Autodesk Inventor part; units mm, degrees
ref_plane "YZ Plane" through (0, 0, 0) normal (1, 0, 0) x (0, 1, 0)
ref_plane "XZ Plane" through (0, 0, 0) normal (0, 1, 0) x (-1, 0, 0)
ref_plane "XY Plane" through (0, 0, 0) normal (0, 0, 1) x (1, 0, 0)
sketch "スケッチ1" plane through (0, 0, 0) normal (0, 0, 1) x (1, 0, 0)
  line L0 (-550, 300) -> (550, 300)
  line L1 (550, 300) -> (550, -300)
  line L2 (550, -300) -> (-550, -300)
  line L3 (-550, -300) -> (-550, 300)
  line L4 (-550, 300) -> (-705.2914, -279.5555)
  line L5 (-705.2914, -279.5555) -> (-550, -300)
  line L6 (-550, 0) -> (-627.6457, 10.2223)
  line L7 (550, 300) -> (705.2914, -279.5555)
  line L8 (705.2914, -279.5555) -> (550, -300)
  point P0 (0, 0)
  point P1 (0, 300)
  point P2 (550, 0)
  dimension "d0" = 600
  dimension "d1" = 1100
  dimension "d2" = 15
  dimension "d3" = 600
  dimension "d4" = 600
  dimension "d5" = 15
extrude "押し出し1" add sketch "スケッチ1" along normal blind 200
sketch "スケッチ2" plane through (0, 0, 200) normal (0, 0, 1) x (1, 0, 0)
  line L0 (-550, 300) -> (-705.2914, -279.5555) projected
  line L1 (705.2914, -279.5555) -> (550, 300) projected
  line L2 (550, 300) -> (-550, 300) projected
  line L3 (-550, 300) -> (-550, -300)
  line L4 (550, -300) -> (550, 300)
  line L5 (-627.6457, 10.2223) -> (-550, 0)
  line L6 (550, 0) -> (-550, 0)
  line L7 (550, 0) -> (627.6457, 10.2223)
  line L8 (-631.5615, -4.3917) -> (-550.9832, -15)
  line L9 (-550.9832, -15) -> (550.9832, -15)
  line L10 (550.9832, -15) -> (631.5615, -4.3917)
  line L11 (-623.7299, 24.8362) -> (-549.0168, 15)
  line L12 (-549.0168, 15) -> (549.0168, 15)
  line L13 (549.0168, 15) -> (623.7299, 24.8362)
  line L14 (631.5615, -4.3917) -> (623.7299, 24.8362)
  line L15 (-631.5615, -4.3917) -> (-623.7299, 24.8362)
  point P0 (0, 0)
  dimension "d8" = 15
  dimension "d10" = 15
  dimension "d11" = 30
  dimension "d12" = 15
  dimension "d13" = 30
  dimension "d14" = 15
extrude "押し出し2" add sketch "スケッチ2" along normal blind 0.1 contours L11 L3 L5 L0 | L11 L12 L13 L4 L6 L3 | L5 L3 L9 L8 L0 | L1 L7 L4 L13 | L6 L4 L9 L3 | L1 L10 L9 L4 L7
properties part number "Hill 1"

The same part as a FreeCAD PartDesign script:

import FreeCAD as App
import Part
import Sketcher
Q = App.Units.Quantity

doc = App.newDocument("Part")
body = doc.addObject("PartDesign::Body", "Body")

# Sketch on XY plane
sketch1 = doc.addObject("Sketcher::SketchObject", "Sketch")
body.addObject(sketch1)
sketch1.AttachmentSupport = (doc.XY_Plane, [""])
sketch1.MapMode = "FlatFace"
sketch1.addGeometry(Part.LineSegment(App.Vector(550, 300, 0), App.Vector(-550, 300, 0)), False)
sketch1.addGeometry(Part.LineSegment(App.Vector(-550, 300, 0), App.Vector(-705, -280, 0)), False)
sketch1.addGeometry(Part.LineSegment(App.Vector(-705, -280, 0), App.Vector(-550, -300, 0)), False)
sketch1.addGeometry(Part.LineSegment(App.Vector(-550, -300, 0), App.Vector(550, -300, 0)), False)
sketch1.addGeometry(Part.LineSegment(App.Vector(550, -300, 0), App.Vector(705, -280, 0)), False)
sketch1.addGeometry(Part.LineSegment(App.Vector(705, -280, 0), App.Vector(550, 300, 0)), False)
sketch1.addConstraint(Sketcher.Constraint("Coincident", 0, 2, 1, 1))
sketch1.addConstraint(Sketcher.Constraint("Coincident", 1, 2, 2, 1))
sketch1.addConstraint(Sketcher.Constraint("Coincident", 2, 2, 3, 1))
sketch1.addConstraint(Sketcher.Constraint("Coincident", 3, 2, 4, 1))
sketch1.addConstraint(Sketcher.Constraint("Coincident", 4, 2, 5, 1))
sketch1.addConstraint(Sketcher.Constraint("Coincident", 5, 2, 0, 1))
sketch1.addConstraint(Sketcher.Constraint("Horizontal", 0))
sketch1.addConstraint(Sketcher.Constraint("Horizontal", 3))
sketch1.addConstraint(Sketcher.Constraint("Symmetric", 0, 2, 3, 2, -1, 1))
sketch1.addConstraint(Sketcher.Constraint("Symmetric", 1, 2, 4, 2, -2))
sketch1.addConstraint(Sketcher.Constraint("Vertical", 0, 2, 2, 2))
sketch1.addConstraint(Sketcher.Constraint("Vertical", 3, 2, 5, 2))
sketch1.addConstraint(Sketcher.Constraint("DistanceX", 0, 2, 0, 1, Q("1100 mm")))
sketch1.addConstraint(Sketcher.Constraint("Distance", 1, Q("600 mm")))
sketch1.addConstraint(Sketcher.Constraint("DistanceY", 2, 2, 0, 2, Q("600 mm")))
sketch1.addConstraint(Sketcher.Constraint("Angle", 1, Q("-105 deg")))
pad1 = doc.addObject("PartDesign::Pad", "Pad")
body.addObject(pad1)
pad1.Profile = sketch1
pad1.Length = 200

# Sketch on XY plane
sketch2 = doc.addObject("Sketcher::SketchObject", "Sketch001")
body.addObject(sketch2)
sketch2.AttachmentSupport = (doc.XY_Plane, [""])
sketch2.MapMode = "FlatFace"
sketch2.AttachmentOffset = App.Placement(App.Vector(0, 0, 200), App.Rotation())
sketch2.addGeometry(Part.LineSegment(App.Vector(-624, 25, 0), App.Vector(-632, -4, 0)), False)
sketch2.addGeometry(Part.LineSegment(App.Vector(-632, -4, 0), App.Vector(-551, -15, 0)), False)
sketch2.addGeometry(Part.LineSegment(App.Vector(-551, -15, 0), App.Vector(551, -15, 0)), False)
sketch2.addGeometry(Part.LineSegment(App.Vector(551, -15, 0), App.Vector(632, -4, 0)), False)
sketch2.addGeometry(Part.LineSegment(App.Vector(632, -4, 0), App.Vector(624, 25, 0)), False)
sketch2.addGeometry(Part.LineSegment(App.Vector(624, 25, 0), App.Vector(549, 15, 0)), False)
sketch2.addGeometry(Part.LineSegment(App.Vector(549, 15, 0), App.Vector(-549, 15, 0)), False)
sketch2.addGeometry(Part.LineSegment(App.Vector(-549, 15, 0), App.Vector(-624, 25, 0)), False)
sketch2.addConstraint(Sketcher.Constraint("Coincident", 0, 2, 1, 1))
sketch2.addConstraint(Sketcher.Constraint("Coincident", 1, 2, 2, 1))
sketch2.addConstraint(Sketcher.Constraint("Coincident", 2, 2, 3, 1))
sketch2.addConstraint(Sketcher.Constraint("Coincident", 3, 2, 4, 1))
sketch2.addConstraint(Sketcher.Constraint("Coincident", 4, 2, 5, 1))
sketch2.addConstraint(Sketcher.Constraint("Coincident", 5, 2, 6, 1))
sketch2.addConstraint(Sketcher.Constraint("Coincident", 6, 2, 7, 1))
sketch2.addConstraint(Sketcher.Constraint("Coincident", 7, 2, 0, 1))
sketch2.addConstraint(Sketcher.Constraint("Horizontal", 2))
sketch2.addConstraint(Sketcher.Constraint("Horizontal", 6))
sketch2.addConstraint(Sketcher.Constraint("Symmetric", 0, 2, 3, 2, -2))
sketch2.addConstraint(Sketcher.Constraint("Symmetric", 4, 2, 7, 2, -2))
sketch2.addConstraint(Sketcher.Constraint("Parallel", 3, 5))
sketch2.addConstraint(Sketcher.Constraint("Parallel", 1, 7))
sketch2.addConstraint(Sketcher.Constraint("Equal", 1, 3))
sketch2.addConstraint(Sketcher.Constraint("DistanceY", 1, 2, -1, 1, Q("15 mm")))
sketch2.addConstraint(Sketcher.Constraint("DistanceY", -1, 1, 5, 2, Q("15 mm")))
sketch2.addConstraint(Sketcher.Constraint("Angle", 0, Q("-105 deg")))
sketch2.addConstraint(Sketcher.Constraint("Angle", 1, Q("-7.5 deg")))
sketch2.addConstraint(Sketcher.Constraint("DistanceX", 1, 2, 5, 2, Q("1100 mm")))
sketch2.addConstraint(Sketcher.Constraint("DistanceX", -1, 1, 4, 2, Q("623.73 mm")))
sketch2.addConstraint(Sketcher.Constraint("Distance", 0, Q("30.259 mm")))
pad2 = doc.addObject("PartDesign::Pad", "Pad001")
body.addObject(pad2)
pad2.Profile = sketch2
pad2.Length = 0.1

doc.recompute()
